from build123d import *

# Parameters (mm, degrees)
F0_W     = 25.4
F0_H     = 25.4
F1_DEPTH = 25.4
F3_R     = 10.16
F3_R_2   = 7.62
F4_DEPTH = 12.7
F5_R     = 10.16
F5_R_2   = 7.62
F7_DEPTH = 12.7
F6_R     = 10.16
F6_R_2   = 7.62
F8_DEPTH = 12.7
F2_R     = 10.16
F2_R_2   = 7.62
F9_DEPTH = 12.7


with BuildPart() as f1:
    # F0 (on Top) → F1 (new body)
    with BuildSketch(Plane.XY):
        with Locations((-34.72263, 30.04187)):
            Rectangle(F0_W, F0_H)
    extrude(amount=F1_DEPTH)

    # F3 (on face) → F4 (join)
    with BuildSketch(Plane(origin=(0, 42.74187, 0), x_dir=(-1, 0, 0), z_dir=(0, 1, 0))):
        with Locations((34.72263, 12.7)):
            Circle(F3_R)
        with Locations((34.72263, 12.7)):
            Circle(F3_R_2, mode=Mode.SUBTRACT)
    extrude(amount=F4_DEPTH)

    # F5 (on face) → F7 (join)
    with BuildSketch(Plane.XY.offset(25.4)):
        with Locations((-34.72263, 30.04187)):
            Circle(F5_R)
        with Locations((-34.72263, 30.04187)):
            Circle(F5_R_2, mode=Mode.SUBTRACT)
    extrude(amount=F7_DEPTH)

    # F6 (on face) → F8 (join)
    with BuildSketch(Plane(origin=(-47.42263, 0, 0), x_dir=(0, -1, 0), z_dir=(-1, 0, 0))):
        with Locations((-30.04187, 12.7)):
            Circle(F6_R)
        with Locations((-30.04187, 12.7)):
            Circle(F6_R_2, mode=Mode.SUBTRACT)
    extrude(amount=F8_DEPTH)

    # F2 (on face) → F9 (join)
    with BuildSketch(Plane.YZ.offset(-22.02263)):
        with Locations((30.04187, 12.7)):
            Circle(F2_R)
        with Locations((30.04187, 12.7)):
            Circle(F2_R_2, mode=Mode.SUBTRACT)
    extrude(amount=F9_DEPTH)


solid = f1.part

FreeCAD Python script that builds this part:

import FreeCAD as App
import Part
import Sketcher

V = App.Vector
Q = App.Units.Quantity


def add_polygon(sketch, points):
    """Adds a closed chain of lines whose ends are joined by coincident constraints."""
    first, n = sketch.GeometryCount, len(points)
    for a, b in zip(points, points[1:] + points[:1]):
        sketch.addGeometry(Part.LineSegment(App.Vector(*a, 0), App.Vector(*b, 0)), False)
    for i in range(n):
        sketch.addConstraint(Sketcher.Constraint("Coincident", first + i, 2, first + (i + 1) % n, 1))

doc = App.newDocument("Part")
body = doc.addObject("PartDesign::Body", "Body")

# Sketch on XY plane
sketch1 = body.newObject("Sketcher::SketchObject", "Sketch")
sketch1.AttachmentSupport = (doc.getObject("XY_Plane"), [""])
sketch1.MapMode = "FlatFace"
add_polygon(sketch1, [(-47, 43), (-47, 17), (-22, 17), (-22, 43)])  # lines 0-3
sketch1.addConstraint([
    Sketcher.Constraint("Vertical", 0),
    Sketcher.Constraint("Horizontal", 1),
    Sketcher.Constraint("Vertical", 2),
    Sketcher.Constraint("Horizontal", 3),
    Sketcher.Constraint("Equal", 3, 0),
    Sketcher.Constraint("DistanceX", 1, 1, 1, 2, Q("1 in")),
    Sketcher.Constraint("DistanceX", 0, 2, -1, 1, 47.42263),
    Sketcher.Constraint("DistanceY", -1, 1, 0, 2, 17.34187),
])
pad1 = body.newObject("PartDesign::Pad", "Pad")
pad1.Profile = sketch1
pad1.Length = Q("1 in")

# Sketch on XZ plane
sketch2 = body.newObject("Sketcher::SketchObject", "Sketch001")
sketch2.AttachmentSupport = (doc.getObject("XZ_Plane"), [""])
sketch2.MapMode = "FlatFace"
sketch2.AttachmentOffset = App.Placement(V(0, 0, -42.74187), App.Rotation())
sketch2.addGeometry([
    Part.Circle(V(-35, 13, 0), V(0, 0, 1), 10),
    Part.Circle(V(-35, 13, 0), V(0, 0, 1), 8),
], False)
sketch2.addConstraint([
    Sketcher.Constraint("Coincident", 1, 3, 0, 3),
    Sketcher.Constraint("Diameter", 0, Q("0.8 in")),
    Sketcher.Constraint("Diameter", 1, Q("0.6 in")),
    Sketcher.Constraint("DistanceY", -1, 1, 0, 3, Q("0.5 in")),
    Sketcher.Constraint("DistanceX", 0, 3, -1, 1, 34.72263),
])
pad2 = body.newObject("PartDesign::Pad", "Pad001")
pad2.Profile = sketch2
pad2.Length = Q("0.5 in")
pad2.Reversed = True

# Sketch on XY plane
sketch3 = body.newObject("Sketcher::SketchObject", "Sketch002")
sketch3.AttachmentSupport = (doc.getObject("XY_Plane"), [""])
sketch3.MapMode = "FlatFace"
sketch3.AttachmentOffset = App.Placement(V(0, 0, 1 * 25.4), App.Rotation())
sketch3.addGeometry([
    Part.Circle(V(-35, 30, 0), V(0, 0, 1), 10),
    Part.Circle(V(-35, 30, 0), V(0, 0, 1), 8),
], False)
sketch3.addConstraint([
    Sketcher.Constraint("Coincident", 1, 3, 0, 3),
    Sketcher.Constraint("Diameter", 0, Q("0.8 in")),
    Sketcher.Constraint("Diameter", 1, Q("0.6 in")),
    Sketcher.Constraint("DistanceX", 0, 3, -1, 1, 34.72263),
    Sketcher.Constraint("DistanceY", -1, 1, 0, 3, 30.04187),
])
pad3 = body.newObject("PartDesign::Pad", "Pad002")
pad3.Profile = sketch3
pad3.Length = Q("0.5 in")

# Sketch on YZ plane
sketch4 = body.newObject("Sketcher::SketchObject", "Sketch003")
sketch4.AttachmentSupport = (doc.getObject("YZ_Plane"), [""])
sketch4.MapMode = "FlatFace"
sketch4.AttachmentOffset = App.Placement(V(0, 0, -47.42263), App.Rotation())
sketch4.addGeometry([
    Part.Circle(V(30, 13, 0), V(0, 0, 1), 10),
    Part.Circle(V(30, 13, 0), V(0, 0, 1), 8),
], False)
sketch4.addConstraint([
    Sketcher.Constraint("Coincident", 1, 3, 0, 3),
    Sketcher.Constraint("Diameter", 0, Q("0.8 in")),
    Sketcher.Constraint("Diameter", 1, Q("0.6 in")),
    Sketcher.Constraint("DistanceY", -1, 1, 0, 3, Q("0.5 in")),
    Sketcher.Constraint("DistanceX", -1, 1, 0, 3, 30.04187),
])
pad4 = body.newObject("PartDesign::Pad", "Pad003")
pad4.Profile = sketch4
pad4.Length = Q("0.5 in")
pad4.Reversed = True

# Sketch on YZ plane
sketch5 = body.newObject("Sketcher::SketchObject", "Sketch004")
sketch5.AttachmentSupport = (doc.getObject("YZ_Plane"), [""])
sketch5.MapMode = "FlatFace"
sketch5.AttachmentOffset = App.Placement(V(0, 0, -22.02263), App.Rotation())
sketch5.addGeometry([
    Part.Circle(V(30, 13, 0), V(0, 0, 1), 10),
    Part.Circle(V(30, 13, 0), V(0, 0, 1), 8),
], False)
sketch5.addConstraint([
    Sketcher.Constraint("Coincident", 1, 3, 0, 3),
    Sketcher.Constraint("Diameter", 0, Q("0.8 in")),
    Sketcher.Constraint("Diameter", 1, Q("0.6 in")),
    Sketcher.Constraint("DistanceY", -1, 1, 0, 3, Q("0.5 in")),
    Sketcher.Constraint("DistanceX", -1, 1, 0, 3, 30.04187),
])
pad5 = body.newObject("PartDesign::Pad", "Pad004")
pad5.Profile = sketch5
pad5.Length = Q("0.5 in")

doc.recompute()
